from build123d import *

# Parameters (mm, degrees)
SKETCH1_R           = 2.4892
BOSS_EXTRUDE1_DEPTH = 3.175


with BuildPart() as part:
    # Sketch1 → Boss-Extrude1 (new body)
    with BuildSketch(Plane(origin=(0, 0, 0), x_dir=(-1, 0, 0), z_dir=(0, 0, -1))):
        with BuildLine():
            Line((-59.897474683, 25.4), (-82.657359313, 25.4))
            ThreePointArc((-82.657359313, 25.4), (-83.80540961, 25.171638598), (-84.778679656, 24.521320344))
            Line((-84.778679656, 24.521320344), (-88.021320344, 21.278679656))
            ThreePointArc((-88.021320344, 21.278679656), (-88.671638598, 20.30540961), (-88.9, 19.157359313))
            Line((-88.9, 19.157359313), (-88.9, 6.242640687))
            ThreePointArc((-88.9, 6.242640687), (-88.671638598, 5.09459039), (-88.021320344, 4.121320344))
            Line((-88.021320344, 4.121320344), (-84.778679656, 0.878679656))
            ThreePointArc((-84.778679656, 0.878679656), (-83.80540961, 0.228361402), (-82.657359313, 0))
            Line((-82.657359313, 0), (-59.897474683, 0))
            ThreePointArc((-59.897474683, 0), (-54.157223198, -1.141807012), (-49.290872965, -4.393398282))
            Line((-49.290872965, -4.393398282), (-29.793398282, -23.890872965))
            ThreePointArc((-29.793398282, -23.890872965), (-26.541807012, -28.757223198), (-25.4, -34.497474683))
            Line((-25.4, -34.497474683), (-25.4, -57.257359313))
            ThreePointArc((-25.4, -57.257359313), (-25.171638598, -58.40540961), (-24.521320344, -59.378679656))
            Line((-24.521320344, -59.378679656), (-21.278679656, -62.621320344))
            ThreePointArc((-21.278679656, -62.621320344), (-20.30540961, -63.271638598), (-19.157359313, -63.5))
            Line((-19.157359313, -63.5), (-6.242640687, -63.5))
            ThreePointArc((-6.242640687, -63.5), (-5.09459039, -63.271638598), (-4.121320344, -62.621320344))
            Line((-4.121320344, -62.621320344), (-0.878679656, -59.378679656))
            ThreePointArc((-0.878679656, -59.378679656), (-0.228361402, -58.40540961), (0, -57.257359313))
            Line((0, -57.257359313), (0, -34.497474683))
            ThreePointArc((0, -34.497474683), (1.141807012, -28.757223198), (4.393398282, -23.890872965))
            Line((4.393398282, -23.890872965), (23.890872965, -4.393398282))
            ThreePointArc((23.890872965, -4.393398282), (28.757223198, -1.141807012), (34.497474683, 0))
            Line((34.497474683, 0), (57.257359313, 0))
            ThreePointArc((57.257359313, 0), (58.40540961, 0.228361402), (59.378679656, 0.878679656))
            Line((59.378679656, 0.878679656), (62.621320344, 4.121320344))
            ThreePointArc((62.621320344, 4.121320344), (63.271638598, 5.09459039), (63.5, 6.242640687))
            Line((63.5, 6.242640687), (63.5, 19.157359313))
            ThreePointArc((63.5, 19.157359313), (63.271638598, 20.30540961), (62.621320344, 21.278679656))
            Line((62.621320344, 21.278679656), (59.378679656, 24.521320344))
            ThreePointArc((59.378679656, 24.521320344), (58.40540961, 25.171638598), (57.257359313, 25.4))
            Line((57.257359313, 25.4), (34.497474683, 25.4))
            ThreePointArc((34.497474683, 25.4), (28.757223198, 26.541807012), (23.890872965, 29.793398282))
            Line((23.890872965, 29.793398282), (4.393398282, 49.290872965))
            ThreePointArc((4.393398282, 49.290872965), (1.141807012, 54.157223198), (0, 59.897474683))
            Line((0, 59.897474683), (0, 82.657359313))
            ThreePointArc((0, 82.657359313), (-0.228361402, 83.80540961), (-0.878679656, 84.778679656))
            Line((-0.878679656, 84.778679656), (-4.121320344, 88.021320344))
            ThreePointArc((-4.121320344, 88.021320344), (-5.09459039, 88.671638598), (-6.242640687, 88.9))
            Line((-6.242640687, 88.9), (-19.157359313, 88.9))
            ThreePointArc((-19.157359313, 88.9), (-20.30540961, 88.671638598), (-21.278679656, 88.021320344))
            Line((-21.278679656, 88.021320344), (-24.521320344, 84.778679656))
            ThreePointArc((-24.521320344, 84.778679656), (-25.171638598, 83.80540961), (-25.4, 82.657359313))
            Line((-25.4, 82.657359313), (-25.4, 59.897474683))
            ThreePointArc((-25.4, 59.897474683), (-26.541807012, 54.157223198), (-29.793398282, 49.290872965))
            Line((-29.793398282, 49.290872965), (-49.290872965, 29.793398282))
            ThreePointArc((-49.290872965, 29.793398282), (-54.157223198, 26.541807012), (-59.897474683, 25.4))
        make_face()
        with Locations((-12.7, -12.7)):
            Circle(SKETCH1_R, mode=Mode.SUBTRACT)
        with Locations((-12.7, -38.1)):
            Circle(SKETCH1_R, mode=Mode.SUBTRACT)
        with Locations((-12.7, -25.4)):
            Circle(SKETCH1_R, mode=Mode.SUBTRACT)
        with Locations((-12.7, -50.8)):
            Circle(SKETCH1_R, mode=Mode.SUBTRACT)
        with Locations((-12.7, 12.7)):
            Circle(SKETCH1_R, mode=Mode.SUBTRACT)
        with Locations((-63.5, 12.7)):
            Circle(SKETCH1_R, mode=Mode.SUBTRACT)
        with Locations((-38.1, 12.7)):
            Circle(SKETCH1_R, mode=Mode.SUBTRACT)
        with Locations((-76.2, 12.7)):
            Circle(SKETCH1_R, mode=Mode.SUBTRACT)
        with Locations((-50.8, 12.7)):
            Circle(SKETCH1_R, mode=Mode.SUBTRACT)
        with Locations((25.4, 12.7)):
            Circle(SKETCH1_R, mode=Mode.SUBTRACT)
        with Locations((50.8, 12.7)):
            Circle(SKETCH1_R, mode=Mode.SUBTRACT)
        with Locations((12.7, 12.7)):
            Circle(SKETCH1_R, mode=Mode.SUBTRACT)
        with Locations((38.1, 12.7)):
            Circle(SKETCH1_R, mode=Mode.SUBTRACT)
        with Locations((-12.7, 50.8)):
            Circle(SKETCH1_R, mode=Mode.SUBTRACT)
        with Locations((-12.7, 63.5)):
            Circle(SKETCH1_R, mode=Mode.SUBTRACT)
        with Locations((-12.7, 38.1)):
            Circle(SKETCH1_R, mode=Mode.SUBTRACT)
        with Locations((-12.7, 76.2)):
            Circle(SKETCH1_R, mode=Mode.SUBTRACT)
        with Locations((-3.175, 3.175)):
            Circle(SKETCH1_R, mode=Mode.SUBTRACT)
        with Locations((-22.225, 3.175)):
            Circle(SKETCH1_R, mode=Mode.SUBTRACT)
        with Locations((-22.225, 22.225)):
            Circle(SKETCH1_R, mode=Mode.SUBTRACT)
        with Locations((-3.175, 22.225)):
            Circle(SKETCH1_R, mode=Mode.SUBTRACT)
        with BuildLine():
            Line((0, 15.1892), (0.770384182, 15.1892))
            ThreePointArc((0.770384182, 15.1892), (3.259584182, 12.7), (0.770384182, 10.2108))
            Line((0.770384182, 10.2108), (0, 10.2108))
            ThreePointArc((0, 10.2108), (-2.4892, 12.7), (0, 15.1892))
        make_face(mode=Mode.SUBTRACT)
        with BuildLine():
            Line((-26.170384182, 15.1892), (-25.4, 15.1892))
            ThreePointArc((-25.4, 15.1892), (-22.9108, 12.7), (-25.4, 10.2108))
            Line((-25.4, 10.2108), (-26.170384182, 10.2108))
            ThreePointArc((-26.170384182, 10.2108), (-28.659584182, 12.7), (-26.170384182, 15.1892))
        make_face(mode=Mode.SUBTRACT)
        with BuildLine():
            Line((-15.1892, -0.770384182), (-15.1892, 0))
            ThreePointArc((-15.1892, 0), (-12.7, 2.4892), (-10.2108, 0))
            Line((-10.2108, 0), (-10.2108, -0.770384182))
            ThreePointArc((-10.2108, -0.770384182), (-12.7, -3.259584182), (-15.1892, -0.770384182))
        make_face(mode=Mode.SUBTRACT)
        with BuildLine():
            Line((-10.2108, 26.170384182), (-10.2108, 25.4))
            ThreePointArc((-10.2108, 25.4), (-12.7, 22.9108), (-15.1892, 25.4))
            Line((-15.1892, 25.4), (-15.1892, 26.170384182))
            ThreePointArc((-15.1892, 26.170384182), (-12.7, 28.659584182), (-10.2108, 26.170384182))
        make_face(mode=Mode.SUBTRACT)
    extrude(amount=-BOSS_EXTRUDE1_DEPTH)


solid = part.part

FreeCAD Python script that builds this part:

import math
import FreeCAD as App
import Part
import Sketcher

V = App.Vector
Q = App.Units.Quantity

doc = App.newDocument("Part")
body = doc.addObject("PartDesign::Body", "Body")

sketch1 = body.newObject("Sketcher::SketchObject", "Sketch")
sketch1.AttachmentSupport = (doc.getObject("XY_Plane"), [""])
sketch1.MapMode = "FlatFace"
sketch1.addGeometry([
    Part.LineSegment(V(59.9, 25.4, 0), V(82.7, 25.4, 0)),
    Part.ArcOfCircle(Part.Circle(V(82.7, 22.4, 0), V(0, 0, 1), 3), math.radians(45), math.radians(90)),
    Part.LineSegment(V(84.8, 24.5, 0), V(88, 21.3, 0)),
    Part.ArcOfCircle(Part.Circle(V(85.9, 19.2, 0), V(0, 0, 1), 3), math.radians(0), math.radians(45)),
    Part.LineSegment(V(88.9, 19.2, 0), V(88.9, 6.2, 0)),
    Part.ArcOfCircle(Part.Circle(V(85.9, 6.2, 0), V(0, 0, 1), 3), math.radians(-45), math.radians(0)),
    Part.LineSegment(V(88, 4.1, 0), V(84.8, 0.9, 0)),
    Part.ArcOfCircle(Part.Circle(V(82.7, 3, 0), V(0, 0, 1), 3), math.radians(-90), math.radians(-45)),
    Part.LineSegment(V(82.7, 0, 0), V(59.9, 0, 0)),
    Part.ArcOfCircle(Part.Circle(V(59.9, -15, 0), V(0, 0, 1), 15), math.radians(90), math.radians(135)),
    Part.LineSegment(V(49.3, -4.4, 0), V(29.8, -23.9, 0)),
    Part.ArcOfCircle(Part.Circle(V(40.4, -34.5, 0), V(0, 0, 1), 15), math.radians(135), math.radians(180)),
    Part.LineSegment(V(25.4, -34.5, 0), V(25.4, -57.3, 0)),
    Part.ArcOfCircle(Part.Circle(V(22.4, -57.3, 0), V(0, 0, 1), 3), math.radians(-45), math.radians(0)),
    Part.LineSegment(V(24.5, -59.4, 0), V(21.3, -62.6, 0)),
    Part.ArcOfCircle(Part.Circle(V(19.2, -60.5, 0), V(0, 0, 1), 3), math.radians(-90), math.radians(-45)),
    Part.LineSegment(V(19.2, -63.5, 0), V(6.2, -63.5, 0)),
    Part.ArcOfCircle(Part.Circle(V(6.2, -60.5, 0), V(0, 0, 1), 3), math.radians(-135), math.radians(-90)),
    Part.LineSegment(V(4.1, -62.6, 0), V(0.9, -59.4, 0)),
    Part.ArcOfCircle(Part.Circle(V(3, -57.3, 0), V(0, 0, 1), 3), math.radians(180), math.radians(225)),
    Part.LineSegment(V(0, -57.3, 0), V(0, -34.5, 0)),
    Part.ArcOfCircle(Part.Circle(V(-15, -34.5, 0), V(0, 0, 1), 15), math.radians(0), math.radians(45)),
    Part.LineSegment(V(-4.4, -23.9, 0), V(-23.9, -4.4, 0)),
    Part.ArcOfCircle(Part.Circle(V(-34.5, -15, 0), V(0, 0, 1), 15), math.radians(45), math.radians(90)),
    Part.LineSegment(V(-34.5, 0, 0), V(-57.3, 0, 0)),
    Part.ArcOfCircle(Part.Circle(V(-57.3, 3, 0), V(0, 0, 1), 3), math.radians(-135), math.radians(-90)),
    Part.LineSegment(V(-59.4, 0.9, 0), V(-62.6, 4.1, 0)),
    Part.ArcOfCircle(Part.Circle(V(-60.5, 6.2, 0), V(0, 0, 1), 3), math.radians(180), math.radians(225)),
    Part.LineSegment(V(-63.5, 6.2, 0), V(-63.5, 19.2, 0)),
    Part.ArcOfCircle(Part.Circle(V(-60.5, 19.2, 0), V(0, 0, 1), 3), math.radians(135), math.radians(180)),
    Part.LineSegment(V(-62.6, 21.3, 0), V(-59.4, 24.5, 0)),
    Part.ArcOfCircle(Part.Circle(V(-57.3, 22.4, 0), V(0, 0, 1), 3), math.radians(90), math.radians(135)),
    Part.LineSegment(V(-57.3, 25.4, 0), V(-34.5, 25.4, 0)),
    Part.ArcOfCircle(Part.Circle(V(-34.5, 40.4, 0), V(0, 0, 1), 15), math.radians(-90), math.radians(-45)),
    Part.LineSegment(V(-23.9, 29.8, 0), V(-4.4, 49.3, 0)),
    Part.ArcOfCircle(Part.Circle(V(-15, 59.9, 0), V(0, 0, 1), 15), math.radians(-45), math.radians(0)),
    Part.LineSegment(V(0, 59.9, 0), V(0, 82.7, 0)),
    Part.ArcOfCircle(Part.Circle(V(3, 82.7, 0), V(0, 0, 1), 3), math.radians(135), math.radians(180)),
    Part.LineSegment(V(0.9, 84.8, 0), V(4.1, 88, 0)),
    Part.ArcOfCircle(Part.Circle(V(6.2, 85.9, 0), V(0, 0, 1), 3), math.radians(90), math.radians(135)),
    Part.LineSegment(V(6.2, 88.9, 0), V(19.2, 88.9, 0)),
    Part.ArcOfCircle(Part.Circle(V(19.2, 85.9, 0), V(0, 0, 1), 3), math.radians(45), math.radians(90)),
    Part.LineSegment(V(21.3, 88, 0), V(24.5, 84.8, 0)),
    Part.ArcOfCircle(Part.Circle(V(22.4, 82.7, 0), V(0, 0, 1), 3), math.radians(0), math.radians(45)),
    Part.LineSegment(V(25.4, 82.7, 0), V(25.4, 59.9, 0)),
    Part.ArcOfCircle(Part.Circle(V(40.4, 59.9, 0), V(0, 0, 1), 15), math.radians(180), math.radians(225)),
    Part.LineSegment(V(29.8, 49.3, 0), V(49.3, 29.8, 0)),
    Part.ArcOfCircle(Part.Circle(V(59.9, 40.4, 0), V(0, 0, 1), 15), math.radians(-135), math.radians(-90)),
    Part.Circle(V(76.2, 12.7, 0), V(0, 0, 1), 2.5),
    Part.Circle(V(63.5, 12.7, 0), V(0, 0, 1), 2.5),
    Part.Circle(V(50.8, 12.7, 0), V(0, 0, 1), 2.5),
    Part.Circle(V(38.1, 12.7, 0), V(0, 0, 1), 2.5),
    Part.Circle(V(22.2, 3.2, 0), V(0, 0, 1), 2.5),
    Part.Circle(V(12.7, -50.8, 0), V(0, 0, 1), 2.5),
    Part.Circle(V(12.7, -38.1, 0), V(0, 0, 1), 2.5),
    Part.Circle(V(12.7, -25.4, 0), V(0, 0, 1), 2.5),
    Part.Circle(V(12.7, -12.7, 0), V(0, 0, 1), 2.5),
    Part.ArcOfCircle(Part.Circle(V(12.7, -0.8, 0), V(0, 0, 1), 2.5), math.radians(180), math.radians(360)),
    Part.LineSegment(V(15.2, -0.8, 0), V(15.2, 0, 0)),
    Part.ArcOfCircle(Part.Circle(V(12.7, 0, 0), V(0, 0, 1), 2.5), math.radians(0), math.radians(180)),
    Part.LineSegment(V(10.2, 0, 0), V(10.2, -0.8, 0)),
    Part.Circle(V(3.2, 3.2, 0), V(0, 0, 1), 2.5),
    Part.Circle(V(12.7, 12.7, 0), V(0, 0, 1), 2.5),
    Part.ArcOfCircle(Part.Circle(V(0, 12.7, 0), V(0, 0, 1), 2.5), math.radians(-90), math.radians(90)),
    Part.LineSegment(V(0, 15.2, 0), V(-0.8, 15.2, 0)),
    Part.ArcOfCircle(Part.Circle(V(-0.8, 12.7, 0), V(0, 0, 1), 2.5), math.radians(90), math.radians(270)),
    Part.LineSegment(V(-0.8, 10.2, 0), V(0, 10.2, 0)),
    Part.Circle(V(-12.7, 12.7, 0), V(0, 0, 1), 2.5),
    Part.Circle(V(-25.4, 12.7, 0), V(0, 0, 1), 2.5),
    Part.Circle(V(-38.1, 12.7, 0), V(0, 0, 1), 2.5),
    Part.Circle(V(-50.8, 12.7, 0), V(0, 0, 1), 2.5),
    Part.ArcOfCircle(Part.Circle(V(26.2, 12.7, 0), V(0, 0, 1), 2.5), math.radians(-90), math.radians(90)),
    Part.LineSegment(V(26.2, 15.2, 0), V(25.4, 15.2, 0)),
    Part.ArcOfCircle(Part.Circle(V(25.4, 12.7, 0), V(0, 0, 1), 2.5), math.radians(90), math.radians(270)),
    Part.LineSegment(V(25.4, 10.2, 0), V(26.2, 10.2, 0)),
    Part.Circle(V(22.2, 22.2, 0), V(0, 0, 1), 2.5),
    Part.ArcOfCircle(Part.Circle(V(12.7, 26.2, 0), V(0, 0, 1), 2.5), math.radians(0), math.radians(180)),
    Part.LineSegment(V(10.2, 26.2, 0), V(10.2, 25.4, 0)),
    Part.ArcOfCircle(Part.Circle(V(12.7, 25.4, 0), V(0, 0, 1), 2.5), math.radians(180), math.radians(360)),
    Part.LineSegment(V(15.2, 25.4, 0), V(15.2, 26.2, 0)),
    Part.Circle(V(3.2, 22.2, 0), V(0, 0, 1), 2.5),
    Part.Circle(V(12.7, 38.1, 0), V(0, 0, 1), 2.5),
    Part.Circle(V(12.7, 50.8, 0), V(0, 0, 1), 2.5),
    Part.Circle(V(12.7, 63.5, 0), V(0, 0, 1), 2.5),
    Part.Circle(V(12.7, 76.2, 0), V(0, 0, 1), 2.5),
], False)
sketch1.addConstraint([
    Sketcher.Constraint("Tangent", 0, 2, 1, 2),
    Sketcher.Constraint("Tangent", 1, 1, 2, 1),
    Sketcher.Constraint("Tangent", 2, 2, 3, 2),
    Sketcher.Constraint("Tangent", 3, 1, 4, 1),
    Sketcher.Constraint("Tangent", 4, 2, 5, 2),
    Sketcher.Constraint("Tangent", 5, 1, 6, 1),
    Sketcher.Constraint("Tangent", 6, 2, 7, 2),
    Sketcher.Constraint("Tangent", 7, 1, 8, 1),
    Sketcher.Constraint("Tangent", 8, 2, 9, 1),
    Sketcher.Constraint("Tangent", 9, 2, 10, 1),
    Sketcher.Constraint("Tangent", 10, 2, 11, 1),
    Sketcher.Constraint("Tangent", 11, 2, 12, 1),
    Sketcher.Constraint("Tangent", 12, 2, 13, 2),
    Sketcher.Constraint("Tangent", 13, 1, 14, 1),
    Sketcher.Constraint("Tangent", 14, 2, 15, 2),
    Sketcher.Constraint("Tangent", 15, 1, 16, 1),
    Sketcher.Constraint("Tangent", 16, 2, 17, 2),
    Sketcher.Constraint("Tangent", 17, 1, 18, 1),
    Sketcher.Constraint("Tangent", 18, 2, 19, 2),
    Sketcher.Constraint("Tangent", 19, 1, 20, 1),
    Sketcher.Constraint("Tangent", 20, 2, 21, 1),
    Sketcher.Constraint("Tangent", 21, 2, 22, 1),
    Sketcher.Constraint("Tangent", 22, 2, 23, 1),
    Sketcher.Constraint("Tangent", 23, 2, 24, 1),
    Sketcher.Constraint("Tangent", 24, 2, 25, 2),
    Sketcher.Constraint("Tangent", 25, 1, 26, 1),
    Sketcher.Constraint("Tangent", 26, 2, 27, 2),
    Sketcher.Constraint("Tangent", 27, 1, 28, 1),
    Sketcher.Constraint("Tangent", 28, 2, 29, 2),
    Sketcher.Constraint("Tangent", 29, 1, 30, 1),
    Sketcher.Constraint("Tangent", 30, 2, 31, 2),
    Sketcher.Constraint("Tangent", 31, 1, 32, 1),
    Sketcher.Constraint("Tangent", 32, 2, 33, 1),
    Sketcher.Constraint("Tangent", 33, 2, 34, 1),
    Sketcher.Constraint("Tangent", 34, 2, 35, 1),
    Sketcher.Constraint("Tangent", 35, 2, 36, 1),
    Sketcher.Constraint("Tangent", 36, 2, 37, 2),
    Sketcher.Constraint("Tangent", 37, 1, 38, 1),
    Sketcher.Constraint("Tangent", 38, 2, 39, 2),
    Sketcher.Constraint("Tangent", 39, 1, 40, 1),
    Sketcher.Constraint("Tangent", 40, 2, 41, 2),
    Sketcher.Constraint("Tangent", 41, 1, 42, 1),
    Sketcher.Constraint("Tangent", 42, 2, 43, 2),
    Sketcher.Constraint("Tangent", 43, 1, 44, 1),
    Sketcher.Constraint("Tangent", 44, 2, 45, 1),
    Sketcher.Constraint("Tangent", 45, 2, 46, 1),
    Sketcher.Constraint("Tangent", 46, 2, 47, 1),
    Sketcher.Constraint("Tangent", 47, 2, 0, 1),
    Sketcher.Constraint("Tangent", 57, 2, 58, 1),
    Sketcher.Constraint("Tangent", 58, 2, 59, 1),
    Sketcher.Constraint("Tangent", 59, 2, 60, 1),
    Sketcher.Constraint("Tangent", 60, 2, 57, 1),
    Sketcher.Constraint("Tangent", 63, 2, 64, 1),
    Sketcher.Constraint("Tangent", 64, 2, 65, 1),
    Sketcher.Constraint("Tangent", 65, 2, 66, 1),
    Sketcher.Constraint("Tangent", 66, 2, 63, 1),
    Sketcher.Constraint("Tangent", 71, 2, 72, 1),
    Sketcher.Constraint("Tangent", 72, 2, 73, 1),
    Sketcher.Constraint("Tangent", 73, 2, 74, 1),
    Sketcher.Constraint("Tangent", 74, 2, 71, 1),
    Sketcher.Constraint("Tangent", 76, 2, 77, 1),
    Sketcher.Constraint("Tangent", 77, 2, 78, 1),
    Sketcher.Constraint("Tangent", 78, 2, 79, 1),
    Sketcher.Constraint("Tangent", 79, 2, 76, 1),
    Sketcher.Constraint("Horizontal", 0),
    Sketcher.Constraint("Vertical", 4),
    Sketcher.Constraint("Horizontal", 8),
    Sketcher.Constraint("Vertical", 12),
    Sketcher.Constraint("Horizontal", 16),
    Sketcher.Constraint("Vertical", 20),
    Sketcher.Constraint("Horizontal", 24),
    Sketcher.Constraint("Vertical", 28),
    Sketcher.Constraint("Horizontal", 32),
    Sketcher.Constraint("Vertical", 36),
    Sketcher.Constraint("Horizontal", 40),
    Sketcher.Constraint("Vertical", 44),
    Sketcher.Constraint("Vertical", 58),
    Sketcher.Constraint("Vertical", 60),
    Sketcher.Constraint("Horizontal", 64),
    Sketcher.Constraint("Horizontal", 66),
    Sketcher.Constraint("Horizontal", 72),
    Sketcher.Constraint("Horizontal", 74),
    Sketcher.Constraint("Vertical", 77),
    Sketcher.Constraint("Vertical", 79),
    Sketcher.Constraint("Equal", 1, 3),
    Sketcher.Constraint("Equal", 3, 5),
    Sketcher.Constraint("Equal", 5, 7),
    Sketcher.Constraint("Equal", 9, 11),
    Sketcher.Constraint("Equal", 7, 13),
    Sketcher.Constraint("Equal", 13, 15),
    Sketcher.Constraint("Equal", 15, 17),
    Sketcher.Constraint("Equal", 17, 19),
    Sketcher.Constraint("Equal", 11, 21),
    Sketcher.Constraint("Equal", 21, 23),
    Sketcher.Constraint("Equal", 19, 25),
    Sketcher.Constraint("Equal", 25, 27),
    Sketcher.Constraint("Equal", 27, 29),
    Sketcher.Constraint("Equal", 29, 31),
    Sketcher.Constraint("Equal", 23, 33),
    Sketcher.Constraint("Equal", 33, 35),
    Sketcher.Constraint("Equal", 31, 37),
    Sketcher.Constraint("Equal", 37, 39),
    Sketcher.Constraint("Equal", 39, 41),
    Sketcher.Constraint("Equal", 41, 43),
    Sketcher.Constraint("Equal", 35, 45),
    Sketcher.Constraint("Equal", 45, 47),
    Sketcher.Constraint("Equal", 48, 49),
    Sketcher.Constraint("Equal", 49, 50),
    Sketcher.Constraint("Equal", 50, 51),
    Sketcher.Constraint("Equal", 51, 52),
    Sketcher.Constraint("Equal", 52, 53),
    Sketcher.Constraint("Equal", 53, 54),
    Sketcher.Constraint("Equal", 54, 55),
    Sketcher.Constraint("Equal", 55, 56),
    Sketcher.Constraint("Equal", 56, 57),
    Sketcher.Constraint("Equal", 59, 61),
    Sketcher.Constraint("Equal", 61, 62),
    Sketcher.Constraint("Equal", 62, 63),
    Sketcher.Constraint("Equal", 65, 67),
    Sketcher.Constraint("Equal", 67, 68),
    Sketcher.Constraint("Equal", 68, 69),
    Sketcher.Constraint("Equal", 69, 70),
    Sketcher.Constraint("Equal", 70, 71),
    Sketcher.Constraint("Equal", 73, 75),
    Sketcher.Constraint("Equal", 75, 76),
    Sketcher.Constraint("Equal", 78, 80),
    Sketcher.Constraint("Equal", 80, 81),
    Sketcher.Constraint("Equal", 81, 82),
    Sketcher.Constraint("Equal", 82, 83),
    Sketcher.Constraint("Equal", 83, 84),
    Sketcher.Constraint("Symmetric", 56, 3, 67, 3, -1, 1),
    Sketcher.Constraint("Symmetric", 62, 3, 67, 3, -2),
    Sketcher.Constraint("Symmetric", 51, 3, 69, 3, -2),
    Sketcher.Constraint("Symmetric", 50, 3, 70, 3, -2),
    Sketcher.Constraint("Symmetric", 68, 3, 73, 3, -2),
    Sketcher.Constraint("Symmetric", 55, 3, 78, 3, -1),
    Sketcher.Constraint("Symmetric", 54, 3, 81, 3, -1),
    Sketcher.Constraint("Symmetric", 53, 3, 82, 3, -1),
    Sketcher.Constraint("PointOnObject", 59, 3, -1),
    Sketcher.Constraint("PointOnObject", 63, 3, -2),
    Sketcher.Constraint("PointOnObject", 7, 1, -1),
    Sketcher.Constraint("PointOnObject", 19, 1, -2),
    Sketcher.Constraint("PointOnObject", 23, 2, -1),
    Sketcher.Constraint("PointOnObject", 35, 2, -2),
    Sketcher.Constraint("Perpendicular", 2, 6),
    Sketcher.Constraint("Parallel", 6, 10),
    Sketcher.Constraint("Parallel", 10, 14),
    Sketcher.Constraint("Perpendicular", 14, 18),
    Sketcher.Constraint("Parallel", 18, 22),
    Sketcher.Constraint("Parallel", 22, 26),
    Sketcher.Constraint("Perpendicular", 26, 30),
    Sketcher.Constraint("Parallel", 30, 34),
    Sketcher.Constraint("Parallel", 34, 38),
    Sketcher.Constraint("Perpendicular", 38, 42),
    Sketcher.Constraint("Parallel", 42, 46),
    Sketcher.Constraint("Horizontal", 13, 3, 19, 3),
    Sketcher.Constraint("Horizontal", 11, 3, 21, 3),
    Sketcher.Constraint("Horizontal", 5, 3, 27, 3),
    Sketcher.Constraint("Horizontal", 3, 3, 29, 3),
    Sketcher.Constraint("Horizontal", 1, 3, 31, 3),
    Sketcher.Constraint("Horizontal", 37, 3, 43, 3),
    Sketcher.Constraint("Horizontal", 35, 3, 45, 3),
    Sketcher.Constraint("Horizontal", 48, 3, 49, 3),
    Sketcher.Constraint("Horizontal", 49, 3, 50, 3),
    Sketcher.Constraint("Horizontal", 50, 3, 51, 3),
    Sketcher.Constraint("Horizontal", 52, 3, 61, 3),
    Sketcher.Constraint("Horizontal", 51, 3, 62, 3),
    Sketcher.Constraint("Horizontal", 62, 3, 63, 3),
    Sketcher.Constraint("Horizontal", 67, 3, 68, 3),
    Sketcher.Constraint("Horizontal", 75, 3, 80, 3),
    Sketcher.Constraint("Horizontal", 78, 3, 0, 2),
    Sketcher.Constraint("Horizontal", 14, 2, 17, 1),
    Sketcher.Constraint("Vertical", 1, 3, 7, 3),
    Sketcher.Constraint("Vertical", 23, 3, 33, 3),
    Sketcher.Constraint("Vertical", 17, 3, 39, 3),
    Sketcher.Constraint("Vertical", 15, 3, 41, 3),
    Sketcher.Constraint("Vertical", 53, 3, 54, 3),
    Sketcher.Constraint("Vertical", 54, 3, 55, 3),
    Sketcher.Constraint("Vertical", 55, 3, 56, 3),
    Sketcher.Constraint("Vertical", 56, 3, 57, 3),
    Sketcher.Constraint("Vertical", 52, 3, 75, 3),
    Sketcher.Constraint("Vertical", 61, 3, 80, 3),
    Sketcher.Constraint("Vertical", 82, 3, 83, 3),
    Sketcher.Constraint("Vertical", 83, 3, 84, 3),
    Sketcher.Constraint("Vertical", 73, 3, 11, 2),
    Sketcher.Constraint("Equal", 8, 24),
    Sketcher.Constraint("Equal", 66, 72),
    Sketcher.Constraint("Equal", 40, 4),
    Sketcher.Constraint("Equal", 32, 12),
    Sketcher.Constraint("Equal", 20, 36),
    Sketcher.Constraint("Equal", 74, 58),
    Sketcher.Constraint("Equal", 60, 77),
    Sketcher.Constraint("Equal", 6, 14),
    Sketcher.Constraint("Radius", 1, Q("3 mm")),
    Sketcher.Constraint("Radius", 9, Q("15 mm")),
    Sketcher.Constraint("Diameter", 48, Q("4.9784 mm")),
    Sketcher.Constraint("DistanceY", -1, 1, 1, 3, Q("22.4 mm")),
    Sketcher.Constraint("DistanceX", -1, 1, 3, 3, Q("85.9 mm")),
    Sketcher.Constraint("DistanceX", -1, 1, 48, 3, Q("76.2 mm")),
    Sketcher.Constraint("DistanceY", -1, 1, 48, 3, Q("12.7 mm")),
    Sketcher.Constraint("DistanceX", -1, 1, 49, 3, Q("63.5 mm")),
    Sketcher.Constraint("DistanceX", -1, 1, 50, 3, Q("50.8 mm")),
    Sketcher.Constraint("DistanceX", -1, 1, 51, 3, Q("38.1 mm")),
    Sketcher.Constraint("DistanceX", -1, 1, 53, 3, Q("12.7 mm")),
    Sketcher.Constraint("DistanceY", 53, 3, -1, 1, Q("50.8 mm")),
    Sketcher.Constraint("DistanceY", 54, 3, -1, 1, Q("38.1 mm")),
    Sketcher.Constraint("DistanceY", -1, 1, 83, 3, Q("63.5 mm")),
    Sketcher.Constraint("DistanceY", -1, 1, 84, 3, Q("76.2 mm")),
    Sketcher.Constraint("DistanceX", -1, 1, 52, 3, Q("22.225 mm")),
    Sketcher.Constraint("DistanceY", -1, 1, 52, 3, Q("3.175 mm")),
    Sketcher.Constraint("DistanceX", -1, 1, 61, 3, Q("3.175 mm")),
    Sketcher.Constraint("DistanceY", -1, 1, 75, 3, Q("22.225 mm")),
    Sketcher.Constraint("DistanceX", 16, 2, 16, 1, Q("12.914719 mm")),
    Sketcher.Constraint("DistanceX", 0, 1, 0, 2, Q("22.759885 mm")),
    Sketcher.Constraint("DistanceX", 64, 2, 64, 1, Q("0.770384 mm")),
])
pad1 = body.newObject("PartDesign::Pad", "Pad")
pad1.Profile = sketch1
pad1.Length = 3.175

doc.recompute()
